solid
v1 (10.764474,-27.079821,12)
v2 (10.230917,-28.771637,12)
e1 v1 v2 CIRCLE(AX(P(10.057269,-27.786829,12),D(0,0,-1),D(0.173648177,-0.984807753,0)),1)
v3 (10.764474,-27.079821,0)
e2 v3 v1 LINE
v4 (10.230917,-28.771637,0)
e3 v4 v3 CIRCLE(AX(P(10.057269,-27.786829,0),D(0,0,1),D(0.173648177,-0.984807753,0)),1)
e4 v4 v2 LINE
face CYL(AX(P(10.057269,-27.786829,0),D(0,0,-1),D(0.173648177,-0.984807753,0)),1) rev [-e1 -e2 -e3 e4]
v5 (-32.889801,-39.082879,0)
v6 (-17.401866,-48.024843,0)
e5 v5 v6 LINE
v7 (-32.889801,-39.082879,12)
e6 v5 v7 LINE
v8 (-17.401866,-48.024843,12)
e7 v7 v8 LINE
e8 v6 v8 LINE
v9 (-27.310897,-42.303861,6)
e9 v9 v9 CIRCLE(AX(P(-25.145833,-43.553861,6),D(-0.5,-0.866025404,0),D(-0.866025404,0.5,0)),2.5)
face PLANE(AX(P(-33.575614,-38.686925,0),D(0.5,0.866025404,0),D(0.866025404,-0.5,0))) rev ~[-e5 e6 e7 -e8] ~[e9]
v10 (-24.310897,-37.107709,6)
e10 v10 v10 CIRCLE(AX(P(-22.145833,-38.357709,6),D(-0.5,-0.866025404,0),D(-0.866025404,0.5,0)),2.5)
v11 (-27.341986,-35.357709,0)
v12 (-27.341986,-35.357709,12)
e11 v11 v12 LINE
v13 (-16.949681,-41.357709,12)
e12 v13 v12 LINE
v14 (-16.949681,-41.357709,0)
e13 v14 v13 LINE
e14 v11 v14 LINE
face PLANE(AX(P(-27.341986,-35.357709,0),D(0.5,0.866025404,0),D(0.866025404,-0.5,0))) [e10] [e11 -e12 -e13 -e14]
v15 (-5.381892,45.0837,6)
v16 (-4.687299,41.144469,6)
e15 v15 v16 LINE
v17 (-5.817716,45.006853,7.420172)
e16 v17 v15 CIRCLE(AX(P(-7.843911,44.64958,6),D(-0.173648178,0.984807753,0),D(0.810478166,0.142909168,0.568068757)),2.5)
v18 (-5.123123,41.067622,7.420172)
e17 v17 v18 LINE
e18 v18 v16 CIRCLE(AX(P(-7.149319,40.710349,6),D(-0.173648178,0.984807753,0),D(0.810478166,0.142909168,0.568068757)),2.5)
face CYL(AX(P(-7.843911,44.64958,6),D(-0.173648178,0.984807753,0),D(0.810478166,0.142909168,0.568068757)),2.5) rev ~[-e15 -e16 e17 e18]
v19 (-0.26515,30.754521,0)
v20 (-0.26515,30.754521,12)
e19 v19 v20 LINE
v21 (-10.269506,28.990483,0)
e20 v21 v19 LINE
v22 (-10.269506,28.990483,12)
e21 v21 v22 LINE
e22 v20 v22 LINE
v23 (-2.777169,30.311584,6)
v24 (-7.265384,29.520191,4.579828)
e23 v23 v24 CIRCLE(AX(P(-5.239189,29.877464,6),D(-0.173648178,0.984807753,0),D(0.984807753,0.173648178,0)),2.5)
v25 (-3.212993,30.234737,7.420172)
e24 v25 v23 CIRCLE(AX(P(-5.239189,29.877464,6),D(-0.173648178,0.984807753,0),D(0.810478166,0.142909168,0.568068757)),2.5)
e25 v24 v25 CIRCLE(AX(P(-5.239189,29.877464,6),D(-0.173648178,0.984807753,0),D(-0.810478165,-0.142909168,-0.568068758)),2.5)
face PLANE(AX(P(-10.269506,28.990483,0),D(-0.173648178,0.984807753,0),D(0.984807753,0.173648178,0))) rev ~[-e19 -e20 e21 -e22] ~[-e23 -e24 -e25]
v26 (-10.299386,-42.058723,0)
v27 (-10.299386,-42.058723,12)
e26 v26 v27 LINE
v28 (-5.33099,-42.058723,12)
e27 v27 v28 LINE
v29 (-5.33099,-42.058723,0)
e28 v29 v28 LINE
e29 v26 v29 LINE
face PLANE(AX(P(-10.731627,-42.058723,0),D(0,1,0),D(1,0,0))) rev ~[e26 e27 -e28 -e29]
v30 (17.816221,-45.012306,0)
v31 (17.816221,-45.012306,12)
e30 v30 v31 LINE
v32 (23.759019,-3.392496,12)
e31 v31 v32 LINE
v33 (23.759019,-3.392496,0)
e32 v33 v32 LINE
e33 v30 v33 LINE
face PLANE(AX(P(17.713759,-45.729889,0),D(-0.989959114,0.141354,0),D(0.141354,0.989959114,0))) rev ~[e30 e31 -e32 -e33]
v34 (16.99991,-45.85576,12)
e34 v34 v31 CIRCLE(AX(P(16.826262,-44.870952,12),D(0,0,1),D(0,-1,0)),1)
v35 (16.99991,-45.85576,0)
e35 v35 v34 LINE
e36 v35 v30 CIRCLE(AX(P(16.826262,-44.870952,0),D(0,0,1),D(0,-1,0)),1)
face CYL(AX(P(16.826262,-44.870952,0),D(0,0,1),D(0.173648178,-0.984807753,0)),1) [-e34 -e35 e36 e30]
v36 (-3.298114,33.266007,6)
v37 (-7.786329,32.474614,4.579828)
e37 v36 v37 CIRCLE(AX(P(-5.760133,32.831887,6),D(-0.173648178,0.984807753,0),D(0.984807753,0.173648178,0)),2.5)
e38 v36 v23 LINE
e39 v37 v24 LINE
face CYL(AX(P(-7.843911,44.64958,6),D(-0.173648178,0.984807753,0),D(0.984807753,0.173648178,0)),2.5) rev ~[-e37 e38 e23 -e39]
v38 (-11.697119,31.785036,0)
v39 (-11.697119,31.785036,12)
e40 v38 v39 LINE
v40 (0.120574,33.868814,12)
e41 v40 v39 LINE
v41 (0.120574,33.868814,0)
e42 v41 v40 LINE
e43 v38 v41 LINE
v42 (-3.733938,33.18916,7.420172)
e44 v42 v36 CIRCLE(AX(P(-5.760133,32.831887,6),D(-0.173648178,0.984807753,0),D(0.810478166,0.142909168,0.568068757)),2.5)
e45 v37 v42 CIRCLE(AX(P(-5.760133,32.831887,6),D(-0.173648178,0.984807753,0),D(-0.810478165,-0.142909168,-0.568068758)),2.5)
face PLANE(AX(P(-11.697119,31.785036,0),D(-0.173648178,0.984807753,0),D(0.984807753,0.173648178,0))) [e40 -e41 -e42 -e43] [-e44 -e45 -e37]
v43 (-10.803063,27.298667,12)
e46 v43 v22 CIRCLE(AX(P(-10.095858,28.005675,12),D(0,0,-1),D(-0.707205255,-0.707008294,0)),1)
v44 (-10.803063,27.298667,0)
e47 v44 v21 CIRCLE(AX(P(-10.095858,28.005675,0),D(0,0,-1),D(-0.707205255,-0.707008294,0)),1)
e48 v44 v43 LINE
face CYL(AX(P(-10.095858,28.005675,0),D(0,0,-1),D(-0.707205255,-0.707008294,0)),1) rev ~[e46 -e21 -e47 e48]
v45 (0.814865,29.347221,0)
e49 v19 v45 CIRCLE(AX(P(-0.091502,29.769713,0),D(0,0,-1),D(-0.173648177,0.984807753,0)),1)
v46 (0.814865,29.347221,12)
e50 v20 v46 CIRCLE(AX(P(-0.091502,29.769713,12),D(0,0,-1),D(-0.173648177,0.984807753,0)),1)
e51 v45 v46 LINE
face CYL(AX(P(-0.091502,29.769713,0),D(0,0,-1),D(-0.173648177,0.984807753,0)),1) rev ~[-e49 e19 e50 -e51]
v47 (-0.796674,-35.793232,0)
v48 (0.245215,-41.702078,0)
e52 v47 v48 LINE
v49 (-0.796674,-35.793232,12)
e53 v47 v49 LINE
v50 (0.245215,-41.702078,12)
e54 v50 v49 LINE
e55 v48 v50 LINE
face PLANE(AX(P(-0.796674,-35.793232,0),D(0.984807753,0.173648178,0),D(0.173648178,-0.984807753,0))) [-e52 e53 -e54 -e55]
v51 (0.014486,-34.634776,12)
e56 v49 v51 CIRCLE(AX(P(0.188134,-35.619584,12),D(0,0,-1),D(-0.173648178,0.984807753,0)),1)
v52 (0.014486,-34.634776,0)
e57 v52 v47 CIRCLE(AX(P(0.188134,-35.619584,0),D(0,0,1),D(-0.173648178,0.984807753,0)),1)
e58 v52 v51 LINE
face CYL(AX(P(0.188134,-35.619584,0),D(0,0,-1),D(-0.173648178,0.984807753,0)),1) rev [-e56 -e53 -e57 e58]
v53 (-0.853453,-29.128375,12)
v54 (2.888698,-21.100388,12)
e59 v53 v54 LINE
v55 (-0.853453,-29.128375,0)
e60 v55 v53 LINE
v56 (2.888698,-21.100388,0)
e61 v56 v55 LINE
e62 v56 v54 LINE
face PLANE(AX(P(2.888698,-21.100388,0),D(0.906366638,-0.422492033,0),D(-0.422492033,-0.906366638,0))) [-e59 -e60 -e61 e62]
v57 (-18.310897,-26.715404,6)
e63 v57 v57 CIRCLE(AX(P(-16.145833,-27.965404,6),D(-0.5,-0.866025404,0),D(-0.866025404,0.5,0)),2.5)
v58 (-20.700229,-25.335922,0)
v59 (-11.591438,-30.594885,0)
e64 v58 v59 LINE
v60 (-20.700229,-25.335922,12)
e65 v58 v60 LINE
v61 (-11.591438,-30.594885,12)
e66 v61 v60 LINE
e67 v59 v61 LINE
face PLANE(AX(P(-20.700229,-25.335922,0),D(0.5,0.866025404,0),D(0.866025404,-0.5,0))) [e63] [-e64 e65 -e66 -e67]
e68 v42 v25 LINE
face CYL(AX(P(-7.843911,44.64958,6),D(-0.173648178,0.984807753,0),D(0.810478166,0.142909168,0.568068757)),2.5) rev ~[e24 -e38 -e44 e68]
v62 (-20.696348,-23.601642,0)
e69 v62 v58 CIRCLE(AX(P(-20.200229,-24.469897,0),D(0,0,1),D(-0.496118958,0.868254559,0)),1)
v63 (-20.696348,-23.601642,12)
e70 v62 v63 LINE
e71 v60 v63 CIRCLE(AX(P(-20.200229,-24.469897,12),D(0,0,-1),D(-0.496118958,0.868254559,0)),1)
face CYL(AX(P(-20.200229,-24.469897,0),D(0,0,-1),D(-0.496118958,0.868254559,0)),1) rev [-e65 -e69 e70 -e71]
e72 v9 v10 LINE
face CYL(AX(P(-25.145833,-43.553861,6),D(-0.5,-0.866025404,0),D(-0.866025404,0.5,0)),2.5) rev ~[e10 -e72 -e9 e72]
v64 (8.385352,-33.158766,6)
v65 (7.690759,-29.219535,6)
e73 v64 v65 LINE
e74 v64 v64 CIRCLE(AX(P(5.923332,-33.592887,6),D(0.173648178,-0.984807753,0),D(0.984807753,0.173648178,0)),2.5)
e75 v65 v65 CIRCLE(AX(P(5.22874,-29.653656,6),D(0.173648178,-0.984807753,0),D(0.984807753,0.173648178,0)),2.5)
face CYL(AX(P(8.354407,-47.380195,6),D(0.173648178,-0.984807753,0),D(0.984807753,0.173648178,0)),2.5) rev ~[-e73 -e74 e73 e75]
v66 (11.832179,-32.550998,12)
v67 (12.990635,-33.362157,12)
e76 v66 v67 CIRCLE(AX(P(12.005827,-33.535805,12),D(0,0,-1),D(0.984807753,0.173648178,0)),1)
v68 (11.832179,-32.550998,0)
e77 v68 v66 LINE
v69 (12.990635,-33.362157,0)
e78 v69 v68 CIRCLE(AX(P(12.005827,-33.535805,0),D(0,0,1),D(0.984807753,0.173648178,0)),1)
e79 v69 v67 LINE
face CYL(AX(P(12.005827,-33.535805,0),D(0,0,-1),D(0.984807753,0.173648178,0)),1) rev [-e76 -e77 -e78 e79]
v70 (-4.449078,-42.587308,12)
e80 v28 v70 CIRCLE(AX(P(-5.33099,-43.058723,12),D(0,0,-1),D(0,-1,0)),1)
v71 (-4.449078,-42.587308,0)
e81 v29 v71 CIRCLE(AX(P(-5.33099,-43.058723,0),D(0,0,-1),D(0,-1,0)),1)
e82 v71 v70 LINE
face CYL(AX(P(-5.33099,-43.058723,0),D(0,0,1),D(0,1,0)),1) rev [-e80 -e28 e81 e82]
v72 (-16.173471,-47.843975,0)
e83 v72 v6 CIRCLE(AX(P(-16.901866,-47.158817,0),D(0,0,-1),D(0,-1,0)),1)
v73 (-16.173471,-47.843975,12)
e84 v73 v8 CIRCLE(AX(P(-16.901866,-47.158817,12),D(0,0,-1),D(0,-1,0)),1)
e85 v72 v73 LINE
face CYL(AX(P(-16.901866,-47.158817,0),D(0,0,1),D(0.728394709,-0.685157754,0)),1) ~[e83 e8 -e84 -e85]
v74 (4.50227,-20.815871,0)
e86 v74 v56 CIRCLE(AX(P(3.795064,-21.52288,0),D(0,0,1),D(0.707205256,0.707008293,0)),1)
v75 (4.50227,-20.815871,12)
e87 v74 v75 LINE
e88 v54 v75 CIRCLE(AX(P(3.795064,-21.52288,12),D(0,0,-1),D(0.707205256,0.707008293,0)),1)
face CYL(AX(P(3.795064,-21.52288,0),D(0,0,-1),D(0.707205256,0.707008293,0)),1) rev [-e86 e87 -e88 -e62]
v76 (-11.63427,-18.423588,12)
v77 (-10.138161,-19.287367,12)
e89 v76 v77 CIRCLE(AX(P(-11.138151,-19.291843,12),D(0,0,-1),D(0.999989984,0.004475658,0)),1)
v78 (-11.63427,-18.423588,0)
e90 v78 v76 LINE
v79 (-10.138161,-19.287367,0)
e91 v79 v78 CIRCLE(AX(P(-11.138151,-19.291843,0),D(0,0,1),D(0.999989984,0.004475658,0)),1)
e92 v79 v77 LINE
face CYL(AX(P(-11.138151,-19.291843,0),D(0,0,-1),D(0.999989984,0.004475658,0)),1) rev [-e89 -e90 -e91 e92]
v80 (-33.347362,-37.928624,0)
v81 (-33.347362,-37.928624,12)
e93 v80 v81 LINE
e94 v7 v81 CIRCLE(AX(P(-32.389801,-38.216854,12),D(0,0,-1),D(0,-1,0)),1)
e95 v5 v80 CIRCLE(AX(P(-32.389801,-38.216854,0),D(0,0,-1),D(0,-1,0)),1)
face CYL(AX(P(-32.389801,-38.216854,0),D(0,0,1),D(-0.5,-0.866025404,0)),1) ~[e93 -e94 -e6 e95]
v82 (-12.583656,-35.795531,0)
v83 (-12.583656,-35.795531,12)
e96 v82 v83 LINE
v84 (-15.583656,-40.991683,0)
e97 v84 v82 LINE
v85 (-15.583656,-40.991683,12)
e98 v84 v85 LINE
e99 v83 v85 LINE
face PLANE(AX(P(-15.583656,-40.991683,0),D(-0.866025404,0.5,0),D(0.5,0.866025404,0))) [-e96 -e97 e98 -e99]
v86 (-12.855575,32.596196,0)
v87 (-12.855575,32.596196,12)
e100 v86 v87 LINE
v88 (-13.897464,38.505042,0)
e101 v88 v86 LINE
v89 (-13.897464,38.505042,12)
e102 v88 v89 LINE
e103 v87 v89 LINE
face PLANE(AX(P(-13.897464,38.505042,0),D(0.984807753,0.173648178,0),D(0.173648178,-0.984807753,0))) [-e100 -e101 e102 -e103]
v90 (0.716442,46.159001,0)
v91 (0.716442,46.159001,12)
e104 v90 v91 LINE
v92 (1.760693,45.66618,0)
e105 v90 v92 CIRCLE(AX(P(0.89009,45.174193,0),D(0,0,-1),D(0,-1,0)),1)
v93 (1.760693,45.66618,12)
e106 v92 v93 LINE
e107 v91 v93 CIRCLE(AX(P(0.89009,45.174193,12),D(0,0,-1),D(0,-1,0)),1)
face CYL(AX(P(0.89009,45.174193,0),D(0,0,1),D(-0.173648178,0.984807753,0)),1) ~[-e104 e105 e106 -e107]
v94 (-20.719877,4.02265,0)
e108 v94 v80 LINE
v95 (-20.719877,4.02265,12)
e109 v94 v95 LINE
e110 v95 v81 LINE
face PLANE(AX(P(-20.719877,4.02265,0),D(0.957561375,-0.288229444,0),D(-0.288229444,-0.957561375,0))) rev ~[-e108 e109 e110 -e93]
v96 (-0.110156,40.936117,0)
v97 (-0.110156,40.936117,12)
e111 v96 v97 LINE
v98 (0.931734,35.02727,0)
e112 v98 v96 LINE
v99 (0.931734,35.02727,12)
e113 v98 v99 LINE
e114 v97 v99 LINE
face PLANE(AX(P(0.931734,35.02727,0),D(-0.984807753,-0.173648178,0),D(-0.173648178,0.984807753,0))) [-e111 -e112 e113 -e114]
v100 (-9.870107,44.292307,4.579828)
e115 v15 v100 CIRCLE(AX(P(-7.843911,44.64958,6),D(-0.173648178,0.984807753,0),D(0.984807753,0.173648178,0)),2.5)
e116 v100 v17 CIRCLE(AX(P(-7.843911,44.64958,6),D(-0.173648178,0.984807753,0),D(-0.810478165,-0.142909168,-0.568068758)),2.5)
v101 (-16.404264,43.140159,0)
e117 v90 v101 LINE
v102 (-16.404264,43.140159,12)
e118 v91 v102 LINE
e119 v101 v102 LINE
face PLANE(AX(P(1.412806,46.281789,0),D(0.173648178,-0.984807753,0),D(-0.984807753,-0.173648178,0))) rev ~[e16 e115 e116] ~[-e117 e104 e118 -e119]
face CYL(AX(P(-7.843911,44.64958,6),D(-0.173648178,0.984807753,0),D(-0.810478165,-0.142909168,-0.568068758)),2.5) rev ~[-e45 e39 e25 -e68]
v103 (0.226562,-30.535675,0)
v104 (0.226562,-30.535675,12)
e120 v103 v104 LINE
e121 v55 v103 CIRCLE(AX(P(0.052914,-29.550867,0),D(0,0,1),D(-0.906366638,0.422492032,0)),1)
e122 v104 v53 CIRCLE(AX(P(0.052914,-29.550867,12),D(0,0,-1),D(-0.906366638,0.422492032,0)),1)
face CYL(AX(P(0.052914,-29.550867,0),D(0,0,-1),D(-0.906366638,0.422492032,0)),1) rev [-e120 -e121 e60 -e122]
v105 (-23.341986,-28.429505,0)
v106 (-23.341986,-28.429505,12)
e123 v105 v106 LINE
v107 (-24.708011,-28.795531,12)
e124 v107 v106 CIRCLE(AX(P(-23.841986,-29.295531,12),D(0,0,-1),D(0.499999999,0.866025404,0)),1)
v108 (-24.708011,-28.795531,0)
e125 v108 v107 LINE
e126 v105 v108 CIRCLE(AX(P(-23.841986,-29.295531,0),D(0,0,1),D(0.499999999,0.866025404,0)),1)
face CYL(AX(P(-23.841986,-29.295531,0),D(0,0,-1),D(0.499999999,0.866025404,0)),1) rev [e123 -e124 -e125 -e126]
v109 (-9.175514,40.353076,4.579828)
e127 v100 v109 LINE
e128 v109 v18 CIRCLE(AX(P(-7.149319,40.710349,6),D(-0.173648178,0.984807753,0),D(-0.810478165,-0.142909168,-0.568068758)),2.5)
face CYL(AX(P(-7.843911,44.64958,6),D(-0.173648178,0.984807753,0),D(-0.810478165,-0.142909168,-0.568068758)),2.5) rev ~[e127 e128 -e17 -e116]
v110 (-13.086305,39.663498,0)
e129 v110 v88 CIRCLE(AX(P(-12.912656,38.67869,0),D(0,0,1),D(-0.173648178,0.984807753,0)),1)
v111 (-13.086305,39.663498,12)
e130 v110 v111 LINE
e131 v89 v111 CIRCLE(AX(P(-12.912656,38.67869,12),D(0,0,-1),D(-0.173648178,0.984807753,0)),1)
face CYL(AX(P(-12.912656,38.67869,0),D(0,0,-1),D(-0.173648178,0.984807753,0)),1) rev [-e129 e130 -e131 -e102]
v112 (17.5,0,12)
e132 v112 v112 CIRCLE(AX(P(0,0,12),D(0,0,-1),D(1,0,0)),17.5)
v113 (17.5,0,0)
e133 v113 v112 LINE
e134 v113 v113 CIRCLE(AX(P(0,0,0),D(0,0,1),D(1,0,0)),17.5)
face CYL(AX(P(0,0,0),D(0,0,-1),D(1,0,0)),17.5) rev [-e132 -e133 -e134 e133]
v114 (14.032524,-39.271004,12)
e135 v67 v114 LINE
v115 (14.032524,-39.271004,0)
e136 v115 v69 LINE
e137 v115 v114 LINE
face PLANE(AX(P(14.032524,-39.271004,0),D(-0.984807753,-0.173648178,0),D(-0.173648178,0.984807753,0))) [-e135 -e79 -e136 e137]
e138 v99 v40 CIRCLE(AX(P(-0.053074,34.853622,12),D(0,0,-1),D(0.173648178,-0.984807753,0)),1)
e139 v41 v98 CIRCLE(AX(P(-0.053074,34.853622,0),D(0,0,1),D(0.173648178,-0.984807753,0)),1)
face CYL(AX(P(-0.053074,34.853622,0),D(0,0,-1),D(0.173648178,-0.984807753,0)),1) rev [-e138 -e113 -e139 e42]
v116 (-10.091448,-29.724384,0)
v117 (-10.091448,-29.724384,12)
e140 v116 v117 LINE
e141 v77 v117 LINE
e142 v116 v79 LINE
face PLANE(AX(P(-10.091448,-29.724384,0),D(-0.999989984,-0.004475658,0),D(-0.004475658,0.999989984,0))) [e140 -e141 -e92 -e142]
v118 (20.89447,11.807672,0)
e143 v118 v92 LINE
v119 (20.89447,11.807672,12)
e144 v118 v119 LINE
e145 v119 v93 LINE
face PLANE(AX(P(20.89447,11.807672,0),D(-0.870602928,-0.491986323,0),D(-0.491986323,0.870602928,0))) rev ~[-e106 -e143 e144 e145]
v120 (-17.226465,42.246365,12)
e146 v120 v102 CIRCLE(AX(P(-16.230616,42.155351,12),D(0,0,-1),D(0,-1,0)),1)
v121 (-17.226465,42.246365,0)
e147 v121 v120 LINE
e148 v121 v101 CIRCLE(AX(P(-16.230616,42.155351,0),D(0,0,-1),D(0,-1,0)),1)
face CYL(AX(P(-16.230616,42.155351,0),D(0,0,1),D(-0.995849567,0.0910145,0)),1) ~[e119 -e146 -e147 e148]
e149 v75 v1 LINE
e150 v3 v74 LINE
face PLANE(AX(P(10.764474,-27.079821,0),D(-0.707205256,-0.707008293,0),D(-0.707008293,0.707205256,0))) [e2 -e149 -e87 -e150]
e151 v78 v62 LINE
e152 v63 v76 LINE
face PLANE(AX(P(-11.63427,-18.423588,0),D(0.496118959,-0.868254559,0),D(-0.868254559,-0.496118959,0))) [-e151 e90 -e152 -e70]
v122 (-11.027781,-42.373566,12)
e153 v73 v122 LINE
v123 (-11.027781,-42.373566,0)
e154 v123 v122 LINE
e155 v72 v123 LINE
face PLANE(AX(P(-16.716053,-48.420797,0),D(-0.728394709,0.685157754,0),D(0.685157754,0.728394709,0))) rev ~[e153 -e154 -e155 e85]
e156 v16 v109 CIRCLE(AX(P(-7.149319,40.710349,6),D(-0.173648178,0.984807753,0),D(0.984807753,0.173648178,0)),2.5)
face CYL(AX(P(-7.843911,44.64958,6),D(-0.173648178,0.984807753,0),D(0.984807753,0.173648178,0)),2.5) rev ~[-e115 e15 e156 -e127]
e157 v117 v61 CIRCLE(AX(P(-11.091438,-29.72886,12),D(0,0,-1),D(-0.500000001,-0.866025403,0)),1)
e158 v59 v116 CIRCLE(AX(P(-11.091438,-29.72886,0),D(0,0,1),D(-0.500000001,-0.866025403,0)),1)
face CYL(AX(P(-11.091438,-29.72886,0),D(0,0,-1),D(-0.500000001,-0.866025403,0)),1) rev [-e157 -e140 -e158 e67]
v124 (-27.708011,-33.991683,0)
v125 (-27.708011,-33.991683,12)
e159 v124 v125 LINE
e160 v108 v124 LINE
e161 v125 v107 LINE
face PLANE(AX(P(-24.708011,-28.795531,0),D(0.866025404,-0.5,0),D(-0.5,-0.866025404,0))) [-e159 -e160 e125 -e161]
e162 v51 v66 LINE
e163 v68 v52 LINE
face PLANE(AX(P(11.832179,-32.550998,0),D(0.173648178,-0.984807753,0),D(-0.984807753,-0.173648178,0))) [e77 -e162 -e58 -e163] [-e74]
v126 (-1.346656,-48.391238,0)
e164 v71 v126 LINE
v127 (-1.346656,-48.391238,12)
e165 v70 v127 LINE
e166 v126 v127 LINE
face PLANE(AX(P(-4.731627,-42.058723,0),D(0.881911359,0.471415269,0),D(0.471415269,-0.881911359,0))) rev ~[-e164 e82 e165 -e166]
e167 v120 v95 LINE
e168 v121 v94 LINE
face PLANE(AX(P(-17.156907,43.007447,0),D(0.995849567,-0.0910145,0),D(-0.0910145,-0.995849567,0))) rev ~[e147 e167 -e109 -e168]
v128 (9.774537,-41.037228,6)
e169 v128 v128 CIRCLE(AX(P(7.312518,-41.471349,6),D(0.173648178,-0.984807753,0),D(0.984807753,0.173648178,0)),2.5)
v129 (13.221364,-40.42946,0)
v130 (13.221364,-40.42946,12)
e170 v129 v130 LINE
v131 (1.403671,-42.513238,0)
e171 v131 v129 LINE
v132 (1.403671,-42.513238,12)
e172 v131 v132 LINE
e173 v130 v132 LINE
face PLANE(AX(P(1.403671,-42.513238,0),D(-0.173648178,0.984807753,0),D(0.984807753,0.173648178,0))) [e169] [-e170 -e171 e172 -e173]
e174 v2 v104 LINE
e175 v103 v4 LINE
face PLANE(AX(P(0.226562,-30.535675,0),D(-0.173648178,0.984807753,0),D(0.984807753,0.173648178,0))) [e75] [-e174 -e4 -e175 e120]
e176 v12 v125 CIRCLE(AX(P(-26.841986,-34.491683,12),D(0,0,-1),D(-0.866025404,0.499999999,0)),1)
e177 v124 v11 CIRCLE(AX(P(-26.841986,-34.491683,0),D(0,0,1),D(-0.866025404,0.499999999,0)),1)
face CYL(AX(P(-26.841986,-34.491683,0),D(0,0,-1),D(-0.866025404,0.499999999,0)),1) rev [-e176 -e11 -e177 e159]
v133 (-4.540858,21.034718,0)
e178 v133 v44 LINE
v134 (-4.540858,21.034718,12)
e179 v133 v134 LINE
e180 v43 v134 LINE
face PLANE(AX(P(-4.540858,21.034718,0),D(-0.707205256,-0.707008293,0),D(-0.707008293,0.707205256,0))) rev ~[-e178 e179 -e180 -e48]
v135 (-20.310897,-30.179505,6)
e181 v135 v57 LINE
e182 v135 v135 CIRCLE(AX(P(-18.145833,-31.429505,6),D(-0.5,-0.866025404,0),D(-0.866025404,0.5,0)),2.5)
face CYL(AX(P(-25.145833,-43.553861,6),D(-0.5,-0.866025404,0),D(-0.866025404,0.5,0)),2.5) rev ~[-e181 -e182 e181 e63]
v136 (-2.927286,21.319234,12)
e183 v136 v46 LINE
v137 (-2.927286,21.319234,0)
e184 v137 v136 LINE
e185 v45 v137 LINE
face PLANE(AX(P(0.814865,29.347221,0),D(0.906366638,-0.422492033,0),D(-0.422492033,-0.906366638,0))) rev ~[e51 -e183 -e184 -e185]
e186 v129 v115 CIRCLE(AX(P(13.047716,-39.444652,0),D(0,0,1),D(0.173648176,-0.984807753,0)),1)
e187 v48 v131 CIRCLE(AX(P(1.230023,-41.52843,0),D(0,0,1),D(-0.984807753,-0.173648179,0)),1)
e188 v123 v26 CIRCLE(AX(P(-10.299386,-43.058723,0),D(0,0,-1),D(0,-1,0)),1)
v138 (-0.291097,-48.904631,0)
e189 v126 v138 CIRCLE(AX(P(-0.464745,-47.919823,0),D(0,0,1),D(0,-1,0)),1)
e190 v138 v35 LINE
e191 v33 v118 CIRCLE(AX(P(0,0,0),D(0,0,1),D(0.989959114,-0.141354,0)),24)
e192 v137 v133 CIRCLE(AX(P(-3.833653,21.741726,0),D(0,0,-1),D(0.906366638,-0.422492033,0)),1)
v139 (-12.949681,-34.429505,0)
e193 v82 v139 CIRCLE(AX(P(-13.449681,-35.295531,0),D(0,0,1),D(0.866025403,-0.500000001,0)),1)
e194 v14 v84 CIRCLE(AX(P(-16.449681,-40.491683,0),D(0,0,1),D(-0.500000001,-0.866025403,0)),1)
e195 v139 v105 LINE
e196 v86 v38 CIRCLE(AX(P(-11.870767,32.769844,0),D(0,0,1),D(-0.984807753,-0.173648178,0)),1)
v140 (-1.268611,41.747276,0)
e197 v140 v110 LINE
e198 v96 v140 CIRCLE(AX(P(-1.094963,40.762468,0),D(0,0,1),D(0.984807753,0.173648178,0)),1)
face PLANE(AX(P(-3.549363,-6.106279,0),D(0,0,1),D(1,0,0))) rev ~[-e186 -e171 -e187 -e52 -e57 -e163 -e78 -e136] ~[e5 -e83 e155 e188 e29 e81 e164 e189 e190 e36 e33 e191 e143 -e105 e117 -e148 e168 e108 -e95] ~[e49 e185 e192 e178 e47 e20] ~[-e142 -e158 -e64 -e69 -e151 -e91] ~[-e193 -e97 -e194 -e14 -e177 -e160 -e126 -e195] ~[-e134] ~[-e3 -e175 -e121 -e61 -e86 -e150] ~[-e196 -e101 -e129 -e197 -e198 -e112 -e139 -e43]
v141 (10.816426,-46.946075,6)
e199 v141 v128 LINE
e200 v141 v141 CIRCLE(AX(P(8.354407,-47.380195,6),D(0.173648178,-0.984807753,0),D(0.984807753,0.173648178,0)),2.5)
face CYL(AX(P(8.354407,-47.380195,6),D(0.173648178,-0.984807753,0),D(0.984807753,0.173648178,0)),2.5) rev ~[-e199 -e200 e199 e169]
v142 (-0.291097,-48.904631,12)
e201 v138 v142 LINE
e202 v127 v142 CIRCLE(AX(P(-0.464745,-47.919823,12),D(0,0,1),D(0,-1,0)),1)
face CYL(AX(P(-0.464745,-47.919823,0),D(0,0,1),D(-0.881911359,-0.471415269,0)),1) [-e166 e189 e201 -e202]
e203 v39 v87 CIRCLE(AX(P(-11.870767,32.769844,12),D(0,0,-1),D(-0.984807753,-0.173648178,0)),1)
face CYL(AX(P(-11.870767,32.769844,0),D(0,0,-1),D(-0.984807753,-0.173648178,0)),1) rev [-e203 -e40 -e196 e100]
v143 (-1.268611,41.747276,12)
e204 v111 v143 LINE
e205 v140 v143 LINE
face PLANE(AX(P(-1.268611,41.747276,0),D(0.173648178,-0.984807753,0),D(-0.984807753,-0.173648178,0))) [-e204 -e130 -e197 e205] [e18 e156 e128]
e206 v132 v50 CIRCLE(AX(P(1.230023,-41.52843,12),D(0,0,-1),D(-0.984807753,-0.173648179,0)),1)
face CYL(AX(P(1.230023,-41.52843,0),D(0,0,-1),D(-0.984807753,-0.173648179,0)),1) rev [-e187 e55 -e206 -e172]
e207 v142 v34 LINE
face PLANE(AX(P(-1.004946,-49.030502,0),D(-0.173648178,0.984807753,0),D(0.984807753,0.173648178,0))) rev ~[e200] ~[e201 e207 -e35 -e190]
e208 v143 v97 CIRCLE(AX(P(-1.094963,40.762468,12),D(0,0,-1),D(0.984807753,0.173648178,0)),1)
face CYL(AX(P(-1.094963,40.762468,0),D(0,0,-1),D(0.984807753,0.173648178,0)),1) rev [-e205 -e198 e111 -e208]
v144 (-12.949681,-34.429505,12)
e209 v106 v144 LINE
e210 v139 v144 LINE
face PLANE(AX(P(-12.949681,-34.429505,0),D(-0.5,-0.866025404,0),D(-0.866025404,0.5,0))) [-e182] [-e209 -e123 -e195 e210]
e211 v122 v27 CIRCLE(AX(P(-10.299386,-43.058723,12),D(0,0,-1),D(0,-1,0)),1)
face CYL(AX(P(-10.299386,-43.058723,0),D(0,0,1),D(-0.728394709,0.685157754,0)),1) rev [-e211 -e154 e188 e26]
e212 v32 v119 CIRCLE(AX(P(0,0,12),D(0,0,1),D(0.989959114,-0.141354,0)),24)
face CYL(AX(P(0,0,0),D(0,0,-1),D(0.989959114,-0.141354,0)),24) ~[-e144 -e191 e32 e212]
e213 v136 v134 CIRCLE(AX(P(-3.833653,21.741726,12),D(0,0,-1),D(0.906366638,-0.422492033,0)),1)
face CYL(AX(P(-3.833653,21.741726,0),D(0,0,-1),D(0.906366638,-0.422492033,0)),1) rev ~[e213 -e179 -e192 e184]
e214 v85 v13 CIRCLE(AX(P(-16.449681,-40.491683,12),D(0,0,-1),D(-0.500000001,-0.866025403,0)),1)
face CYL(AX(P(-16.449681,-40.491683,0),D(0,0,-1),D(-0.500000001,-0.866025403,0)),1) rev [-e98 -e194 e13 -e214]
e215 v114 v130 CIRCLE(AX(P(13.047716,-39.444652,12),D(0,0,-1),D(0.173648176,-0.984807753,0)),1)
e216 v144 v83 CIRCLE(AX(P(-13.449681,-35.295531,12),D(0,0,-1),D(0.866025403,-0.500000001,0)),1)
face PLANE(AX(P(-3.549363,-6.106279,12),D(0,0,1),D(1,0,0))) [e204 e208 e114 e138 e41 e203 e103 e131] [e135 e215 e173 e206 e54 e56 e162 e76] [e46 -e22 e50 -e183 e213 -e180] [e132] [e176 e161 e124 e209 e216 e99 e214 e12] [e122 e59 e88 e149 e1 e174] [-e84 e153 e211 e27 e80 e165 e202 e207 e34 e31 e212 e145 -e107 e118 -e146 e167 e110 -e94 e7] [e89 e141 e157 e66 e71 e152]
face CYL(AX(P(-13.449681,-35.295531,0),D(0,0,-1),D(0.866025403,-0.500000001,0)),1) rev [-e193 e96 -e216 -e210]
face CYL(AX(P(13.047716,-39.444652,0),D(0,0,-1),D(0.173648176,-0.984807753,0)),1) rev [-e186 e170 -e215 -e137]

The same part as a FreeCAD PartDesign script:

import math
import FreeCAD as App
import Part
import Sketcher
Q = App.Units.Quantity


def edges_at(feature, points):
    """Names of the edges that pass closest to the given points."""
    edges = feature.Shape.Edges
    near = lambda p: min(range(len(edges)), key=lambda i: edges[i].distToShape(Part.Vertex(*p))[0])
    return sorted({f"Edge{near(p) + 1}" for p in points})

doc = App.newDocument("Part")
params = doc.addObject("Spreadsheet::Sheet", "Params")
for row, (alias, value) in enumerate([
    ("sketch1_radius", "24 mm"),
    ("sketch1_width", "6 mm"),
    ("pad1_length", "12 mm"),
    ("sketch2_diameter", "35 mm"),
    ("sketch3_radius", "1 mm"),
    ("sketch3_length", "6 mm"),
    ("sketch3_length2", "12 mm"),
    ("fillet_radius", "1 mm"),
    ("sketch4_diameter", "5 mm"),
    ("pocket3_length", "20 mm"),
    ("sketch5_diameter", "5 mm"),
    ("pocket4_length", "20 mm"),
    ("sketch6_radius", "2.5 mm"),
    ("pocket5_length", "20 mm"),
], start=1):
    params.set(f"A{row}", alias)
    params.set(f"B{row}", "=" + value)
    params.setAlias(f"B{row}", alias)

body = doc.addObject("PartDesign::Body", "Body")

sketch1 = body.newObject("Sketcher::SketchObject", "Sketch")
sketch1.AttachmentSupport = (doc.getObject("XY_Plane"), [""])
sketch1.MapMode = "FlatFace"
sketch1.addGeometry(Part.LineSegment(App.Vector(-16.716053, -48.420797, 0), App.Vector(-10.731627, -42.058723, 0)), False)
sketch1.addGeometry(Part.LineSegment(App.Vector(-10.731627, -42.058723, 0), App.Vector(-4.731627, -42.058723, 0)), False)
sketch1.addGeometry(Part.LineSegment(App.Vector(-4.731627, -42.058723, 0), App.Vector(-1.004946, -49.030502, 0)), False)
sketch1.addGeometry(Part.LineSegment(App.Vector(-1.004946, -49.030502, 0), App.Vector(17.713759, -45.729889, 0)), False)
sketch1.addGeometry(Part.LineSegment(App.Vector(17.713759, -45.729889, 0), App.Vector(23.759019, -3.392496, 0)), False)
sketch1.addGeometry(Part.ArcOfCircle(Part.Circle(App.Vector(0, 0, 0), App.Vector(0, 0, 1), 24), math.radians(-8.126204), math.radians(29.471221)), False)
sketch1.addGeometry(Part.LineSegment(App.Vector(20.89447, 11.807672, 0), App.Vector(1.412806, 46.281789, 0)), False)
sketch1.addGeometry(Part.LineSegment(App.Vector(1.412806, 46.281789, 0), App.Vector(-17.156907, 43.007447, 0)), False)
sketch1.addGeometry(Part.LineSegment(App.Vector(-17.156907, 43.007447, 0), App.Vector(-20.719877, 4.02265, 0)), False)
sketch1.addGeometry(Part.LineSegment(App.Vector(-20.719877, 4.02265, 0), App.Vector(-33.575614, -38.686925, 0)), False)
sketch1.addGeometry(Part.LineSegment(App.Vector(-33.575614, -38.686925, 0), App.Vector(-16.716053, -48.420797, 0)), False)
sketch1.addConstraint(Sketcher.Constraint("Coincident", 0, 2, 1, 1))
sketch1.addConstraint(Sketcher.Constraint("Coincident", 1, 2, 2, 1))
sketch1.addConstraint(Sketcher.Constraint("Coincident", 2, 2, 3, 1))
sketch1.addConstraint(Sketcher.Constraint("Coincident", 3, 2, 4, 1))
sketch1.addConstraint(Sketcher.Constraint("Tangent", 4, 2, 5, 1))
sketch1.addConstraint(Sketcher.Constraint("Tangent", 5, 2, 6, 1))
sketch1.addConstraint(Sketcher.Constraint("Coincident", 6, 2, 7, 1))
sketch1.addConstraint(Sketcher.Constraint("Coincident", 7, 2, 8, 1))
sketch1.addConstraint(Sketcher.Constraint("Coincident", 8, 2, 9, 1))
sketch1.addConstraint(Sketcher.Constraint("Coincident", 9, 2, 10, 1))
sketch1.addConstraint(Sketcher.Constraint("Coincident", 10, 2, 0, 1))
sketch1.addConstraint(Sketcher.Constraint("Horizontal", 1))
sketch1.addConstraint(Sketcher.Constraint("Coincident", 5, 3, -1, 1))
sketch1.addConstraint(Sketcher.Constraint("Parallel", 3, 7))
sketch1.addConstraint(Sketcher.Constraint("Radius", 5, 24.0))
sketch1.addConstraint(Sketcher.Constraint("DistanceX", 1, 1, 1, 2, 6.0))
sketch1.addConstraint(Sketcher.Constraint("Angle", 3, Q("10 deg")))
sketch1.addConstraint(Sketcher.Constraint("Angle", 10, Q("-30 deg")))
sketch1.addConstraint(Sketcher.Constraint("DistanceY", 2, 2, -1, 1, 49.030502))
sketch1.addConstraint(Sketcher.Constraint("DistanceY", 0, 2, 9, 2, 3.371798))
sketch1.addConstraint(Sketcher.Constraint("Distance", 3, 19.007471))
sketch1.addConstraint(Sketcher.Constraint("Distance", 4, 42.76681))
sketch1.addConstraint(Sketcher.Constraint("Distance", 6, 39.59798))
sketch1.addConstraint(Sketcher.Constraint("Distance", 7, 18.856181))
sketch1.addConstraint(Sketcher.Constraint("Distance", 9, 44.602441))
sketch1.addConstraint(Sketcher.Constraint("DistanceX", -1, 1, 5, 2, 20.89447))
sketch1.addConstraint(Sketcher.Constraint("DistanceY", -1, 1, 8, 2, 4.02265))
sketch1.addConstraint(Sketcher.Constraint("DistanceX", 1, 2, 2, 2, 3.726681))
sketch1.addConstraint(Sketcher.Constraint("DistanceY", 2, 2, 1, 2, 6.971778))
sketch1.addConstraint(Sketcher.Constraint("DistanceX", 8, 2, 7, 2, 3.56297))
sketch1.addConstraint(Sketcher.Constraint("DistanceX", 9, 2, 10, 2, 16.859561))
sketch1.setExpression("Constraints[14]", "Params.sketch1_radius")
sketch1.setExpression("Constraints[15]", "Params.sketch1_width")
pad1 = body.newObject("PartDesign::Pad", "Pad")
pad1.Profile = sketch1
pad1.setExpression("Length", "Params.pad1_length")

sketch2 = body.newObject("Sketcher::SketchObject", "Sketch001")
sketch2.AttachmentSupport = (doc.getObject("XY_Plane"), [""])
sketch2.MapMode = "FlatFace"
sketch2.addGeometry(Part.Circle(App.Vector(0, 0, 0), App.Vector(0, 0, 1), 17.5), False)
sketch2.addConstraint(Sketcher.Constraint("Coincident", 0, 3, -1, 1))
sketch2.addConstraint(Sketcher.Constraint("Diameter", 0, 35.0))
sketch2.setExpression("Constraints[1]", "Params.sketch2_diameter")
pocket1 = body.newObject("PartDesign::Pocket", "Pocket")
pocket1.Profile = sketch2
pocket1.Type = "ThroughAll"
pocket1.Reversed = True

sketch3 = body.newObject("Sketcher::SketchObject", "Sketch002")
sketch3.AttachmentSupport = (doc.getObject("XY_Plane"), [""])
sketch3.MapMode = "FlatFace"
sketch3.addGeometry(Part.ArcOfCircle(Part.Circle(App.Vector(-13.449681, -35.295531, 0), App.Vector(0, 0, 1), 1), math.radians(-30), math.radians(60)), False)
sketch3.addGeometry(Part.LineSegment(App.Vector(-12.583656, -35.795531, 0), App.Vector(-15.583656, -40.991683, 0)), False)
sketch3.addGeometry(Part.ArcOfCircle(Part.Circle(App.Vector(-16.449681, -40.491683, 0), App.Vector(0, 0, 1), 1), math.radians(-120), math.radians(-30)), False)
sketch3.addGeometry(Part.LineSegment(App.Vector(-16.949681, -41.357709, 0), App.Vector(-27.341986, -35.357709, 0)), False)
sketch3.addGeometry(Part.ArcOfCircle(Part.Circle(App.Vector(-26.841986, -34.491683, 0), App.Vector(0, 0, 1), 1), math.radians(150), math.radians(240)), False)
sketch3.addGeometry(Part.LineSegment(App.Vector(-27.708011, -33.991683, 0), App.Vector(-24.708011, -28.795531, 0)), False)
sketch3.addGeometry(Part.ArcOfCircle(Part.Circle(App.Vector(-23.841986, -29.295531, 0), App.Vector(0, 0, 1), 1), math.radians(60), math.radians(150)), False)
sketch3.addGeometry(Part.LineSegment(App.Vector(-23.341986, -28.429505, 0), App.Vector(-12.949681, -34.429505, 0)), False)
sketch3.addGeometry(Part.ArcOfCircle(Part.Circle(App.Vector(10.057269, -27.786829, 0), App.Vector(0, 0, 1), 1), math.radians(-80), math.radians(44.99202)), False)
sketch3.addGeometry(Part.LineSegment(App.Vector(10.230917, -28.771637, 0), App.Vector(0.226562, -30.535675, 0)), False)
sketch3.addGeometry(Part.ArcOfCircle(Part.Circle(App.Vector(0.052914, -29.550867, 0), App.Vector(0, 0, 1), 1), math.radians(155.00798), math.radians(280)), False)
sketch3.addGeometry(Part.LineSegment(App.Vector(-0.853453, -29.128375, 0), App.Vector(2.888698, -21.100388, 0)), False)
sketch3.addGeometry(Part.ArcOfCircle(Part.Circle(App.Vector(3.795064, -21.52288, 0), App.Vector(0, 0, 1), 1), math.radians(44.99202), math.radians(155.00798)), False)
sketch3.addGeometry(Part.LineSegment(App.Vector(4.50227, -20.815871, 0), App.Vector(10.764474, -27.079821, 0)), False)
sketch3.addGeometry(Part.ArcOfCircle(Part.Circle(App.Vector(12.005827, -33.535805, 0), App.Vector(0, 0, 1), 1), math.radians(10), math.radians(100)), False)
sketch3.addGeometry(Part.LineSegment(App.Vector(12.990635, -33.362157, 0), App.Vector(14.032524, -39.271004, 0)), False)
sketch3.addGeometry(Part.ArcOfCircle(Part.Circle(App.Vector(13.047716, -39.444652, 0), App.Vector(0, 0, 1), 1), math.radians(-80), math.radians(10)), False)
sketch3.addGeometry(Part.LineSegment(App.Vector(13.221364, -40.42946, 0), App.Vector(1.403671, -42.513238, 0)), False)
sketch3.addGeometry(Part.ArcOfCircle(Part.Circle(App.Vector(1.230023, -41.52843, 0), App.Vector(0, 0, 1), 1), math.radians(-170), math.radians(-80)), False)
sketch3.addGeometry(Part.LineSegment(App.Vector(0.245215, -41.702078, 0), App.Vector(-0.796674, -35.793232, 0)), False)
sketch3.addGeometry(Part.ArcOfCircle(Part.Circle(App.Vector(0.188134, -35.619584, 0), App.Vector(0, 0, 1), 1), math.radians(100), math.radians(190)), False)
sketch3.addGeometry(Part.LineSegment(App.Vector(0.014486, -34.634776, 0), App.Vector(11.832179, -32.550998, 0)), False)
sketch3.addGeometry(Part.LineSegment(App.Vector(0.814865, 29.347221, 0), App.Vector(-2.927286, 21.319234, 0)), False)
sketch3.addGeometry(Part.ArcOfCircle(Part.Circle(App.Vector(-3.833653, 21.741726, 0), App.Vector(0, 0, 1), 1), math.radians(-135.00798), math.radians(-24.99202)), False)
sketch3.addGeometry(Part.LineSegment(App.Vector(-4.540858, 21.034718, 0), App.Vector(-10.803063, 27.298667, 0)), False)
sketch3.addGeometry(Part.ArcOfCircle(Part.Circle(App.Vector(-10.095858, 28.005675, 0), App.Vector(0, 0, 1), 1), math.radians(100), math.radians(224.99202)), False)
sketch3.addGeometry(Part.LineSegment(App.Vector(-10.269506, 28.990483, 0), App.Vector(-0.26515, 30.754521, 0)), False)
sketch3.addGeometry(Part.ArcOfCircle(Part.Circle(App.Vector(-0.091502, 29.769713, 0), App.Vector(0, 0, 1), 1), math.radians(-24.99202), math.radians(100)), False)
sketch3.addGeometry(Part.ArcOfCircle(Part.Circle(App.Vector(-11.870767, 32.769844, 0), App.Vector(0, 0, 1), 1), math.radians(-170), math.radians(-80)), False)
sketch3.addGeometry(Part.LineSegment(App.Vector(-12.855575, 32.596196, 0), App.Vector(-13.897464, 38.505042, 0)), False)
sketch3.addGeometry(Part.ArcOfCircle(Part.Circle(App.Vector(-12.912656, 38.67869, 0), App.Vector(0, 0, 1), 1), math.radians(100), math.radians(190)), False)
sketch3.addGeometry(Part.LineSegment(App.Vector(-13.086305, 39.663498, 0), App.Vector(-1.268611, 41.747276, 0)), False)
sketch3.addGeometry(Part.ArcOfCircle(Part.Circle(App.Vector(-1.094963, 40.762468, 0), App.Vector(0, 0, 1), 1), math.radians(10), math.radians(100)), False)
sketch3.addGeometry(Part.LineSegment(App.Vector(-0.110156, 40.936117, 0), App.Vector(0.931734, 35.02727, 0)), False)
sketch3.addGeometry(Part.ArcOfCircle(Part.Circle(App.Vector(-0.053074, 34.853622, 0), App.Vector(0, 0, 1), 1), math.radians(-80), math.radians(10)), False)
sketch3.addGeometry(Part.LineSegment(App.Vector(0.120574, 33.868814, 0), App.Vector(-11.697119, 31.785036, 0)), False)
sketch3.addGeometry(Part.LineSegment(App.Vector(-20.696348, -23.601642, 0), App.Vector(-11.63427, -18.423588, 0)), False)
sketch3.addGeometry(Part.ArcOfCircle(Part.Circle(App.Vector(-11.138151, -19.291843, 0), App.Vector(0, 0, 1), 1), math.radians(0.256437), math.radians(119.743563)), False)
sketch3.addGeometry(Part.LineSegment(App.Vector(-10.138161, -19.287367, 0), App.Vector(-10.091448, -29.724384, 0)), False)
sketch3.addGeometry(Part.ArcOfCircle(Part.Circle(App.Vector(-11.091438, -29.72886, 0), App.Vector(0, 0, 1), 1), math.radians(-120), math.radians(0.256437)), False)
sketch3.addGeometry(Part.LineSegment(App.Vector(-11.591438, -30.594885, 0), App.Vector(-20.700229, -25.335922, 0)), False)
sketch3.addGeometry(Part.ArcOfCircle(Part.Circle(App.Vector(-20.200229, -24.469897, 0), App.Vector(0, 0, 1), 1), math.radians(119.743563), math.radians(240)), False)
sketch3.addConstraint(Sketcher.Constraint("Tangent", 0, 1, 1, 1))
sketch3.addConstraint(Sketcher.Constraint("Tangent", 1, 2, 2, 2))
sketch3.addConstraint(Sketcher.Constraint("Tangent", 2, 1, 3, 1))
sketch3.addConstraint(Sketcher.Constraint("Tangent", 3, 2, 4, 2))
sketch3.addConstraint(Sketcher.Constraint("Tangent", 4, 1, 5, 1))
sketch3.addConstraint(Sketcher.Constraint("Tangent", 5, 2, 6, 2))
sketch3.addConstraint(Sketcher.Constraint("Tangent", 6, 1, 7, 1))
sketch3.addConstraint(Sketcher.Constraint("Tangent", 7, 2, 0, 2))
sketch3.addConstraint(Sketcher.Constraint("Tangent", 8, 1, 9, 1))
sketch3.addConstraint(Sketcher.Constraint("Tangent", 9, 2, 10, 2))
sketch3.addConstraint(Sketcher.Constraint("Tangent", 10, 1, 11, 1))
sketch3.addConstraint(Sketcher.Constraint("Tangent", 11, 2, 12, 2))
sketch3.addConstraint(Sketcher.Constraint("Tangent", 12, 1, 13, 1))
sketch3.addConstraint(Sketcher.Constraint("Tangent", 13, 2, 8, 2))
sketch3.addConstraint(Sketcher.Constraint("Tangent", 14, 1, 15, 1))
sketch3.addConstraint(Sketcher.Constraint("Tangent", 15, 2, 16, 2))
sketch3.addConstraint(Sketcher.Constraint("Tangent", 16, 1, 17, 1))
sketch3.addConstraint(Sketcher.Constraint("Tangent", 17, 2, 18, 2))
sketch3.addConstraint(Sketcher.Constraint("Tangent", 18, 1, 19, 1))
sketch3.addConstraint(Sketcher.Constraint("Tangent", 19, 2, 20, 2))
sketch3.addConstraint(Sketcher.Constraint("Tangent", 20, 1, 21, 1))
sketch3.addConstraint(Sketcher.Constraint("Tangent", 21, 2, 14, 2))
sketch3.addConstraint(Sketcher.Constraint("Tangent", 22, 2, 23, 2))
sketch3.addConstraint(Sketcher.Constraint("Tangent", 23, 1, 24, 1))
sketch3.addConstraint(Sketcher.Constraint("Tangent", 24, 2, 25, 2))
sketch3.addConstraint(Sketcher.Constraint("Tangent", 25, 1, 26, 1))
sketch3.addConstraint(Sketcher.Constraint("Tangent", 26, 2, 27, 2))
sketch3.addConstraint(Sketcher.Constraint("Tangent", 27, 1, 22, 1))
sketch3.addConstraint(Sketcher.Constraint("Tangent", 28, 1, 29, 1))
sketch3.addConstraint(Sketcher.Constraint("Tangent", 29, 2, 30, 2))
sketch3.addConstraint(Sketcher.Constraint("Tangent", 30, 1, 31, 1))
sketch3.addConstraint(Sketcher.Constraint("Tangent", 31, 2, 32, 2))
sketch3.addConstraint(Sketcher.Constraint("Tangent", 32, 1, 33, 1))
sketch3.addConstraint(Sketcher.Constraint("Tangent", 33, 2, 34, 2))
sketch3.addConstraint(Sketcher.Constraint("Tangent", 34, 1, 35, 1))
sketch3.addConstraint(Sketcher.Constraint("Tangent", 35, 2, 28, 2))
sketch3.addConstraint(Sketcher.Constraint("Tangent", 36, 2, 37, 2))
sketch3.addConstraint(Sketcher.Constraint("Tangent", 37, 1, 38, 1))
sketch3.addConstraint(Sketcher.Constraint("Tangent", 38, 2, 39, 2))
sketch3.addConstraint(Sketcher.Constraint("Tangent", 39, 1, 40, 1))
sketch3.addConstraint(Sketcher.Constraint("Tangent", 40, 2, 41, 2))
sketch3.addConstraint(Sketcher.Constraint("Tangent", 41, 1, 36, 1))
sketch3.addConstraint(Sketcher.Constraint("Equal", 0, 2))
sketch3.addConstraint(Sketcher.Constraint("Equal", 2, 4))
sketch3.addConstraint(Sketcher.Constraint("Equal", 4, 6))
sketch3.addConstraint(Sketcher.Constraint("Equal", 6, 8))
sketch3.addConstraint(Sketcher.Constraint("Equal", 8, 10))
sketch3.addConstraint(Sketcher.Constraint("Equal", 10, 12))
sketch3.addConstraint(Sketcher.Constraint("Equal", 12, 14))
sketch3.addConstraint(Sketcher.Constraint("Equal", 14, 16))
sketch3.addConstraint(Sketcher.Constraint("Equal", 16, 18))
sketch3.addConstraint(Sketcher.Constraint("Equal", 18, 20))
sketch3.addConstraint(Sketcher.Constraint("Equal", 20, 23))
sketch3.addConstraint(Sketcher.Constraint("Equal", 23, 25))
sketch3.addConstraint(Sketcher.Constraint("Equal", 25, 27))
sketch3.addConstraint(Sketcher.Constraint("Equal", 27, 28))
sketch3.addConstraint(Sketcher.Constraint("Equal", 28, 30))
sketch3.addConstraint(Sketcher.Constraint("Equal", 30, 32))
sketch3.addConstraint(Sketcher.Constraint("Equal", 32, 34))
sketch3.addConstraint(Sketcher.Constraint("Equal", 34, 37))
sketch3.addConstraint(Sketcher.Constraint("Equal", 37, 39))
sketch3.addConstraint(Sketcher.Constraint("Equal", 39, 41))
sketch3.addConstraint(Sketcher.Constraint("Perpendicular", 1, 3))
sketch3.addConstraint(Sketcher.Constraint("Perpendicular", 3, 5))
sketch3.addConstraint(Sketcher.Constraint("Perpendicular", 5, 7))
sketch3.addConstraint(Sketcher.Constraint("Perpendicular", 9, 15))
sketch3.addConstraint(Sketcher.Constraint("Perpendicular", 15, 17))
sketch3.addConstraint(Sketcher.Constraint("Perpendicular", 17, 19))
sketch3.addConstraint(Sketcher.Constraint("Perpendicular", 19, 21))
sketch3.addConstraint(Sketcher.Constraint("Parallel", 11, 22))
sketch3.addConstraint(Sketcher.Constraint("Parallel", 13, 24))
sketch3.addConstraint(Sketcher.Constraint("Parallel", 21, 26))
sketch3.addConstraint(Sketcher.Constraint("Perpendicular", 26, 29))
sketch3.addConstraint(Sketcher.Constraint("Perpendicular", 29, 31))
sketch3.addConstraint(Sketcher.Constraint("Perpendicular", 31, 33))
sketch3.addConstraint(Sketcher.Constraint("Perpendicular", 33, 35))
sketch3.addConstraint(Sketcher.Constraint("Parallel", 7, 40))
sketch3.addConstraint(Sketcher.Constraint("Equal", 11, 13))
sketch3.addConstraint(Sketcher.Constraint("Equal", 5, 15))
sketch3.addConstraint(Sketcher.Constraint("Equal", 7, 17))
sketch3.addConstraint(Sketcher.Constraint("Equal", 13, 22))
sketch3.addConstraint(Sketcher.Constraint("Equal", 19, 29))
sketch3.addConstraint(Sketcher.Constraint("Equal", 21, 31))
sketch3.addConstraint(Sketcher.Constraint("Equal", 36, 38))
sketch3.addConstraint(Sketcher.Constraint("Radius", 0, 1.0))
sketch3.addConstraint(Sketcher.Constraint("Angle", 1, Q("-120 deg")))
sketch3.addConstraint(Sketcher.Constraint("Angle", 9, Q("-170 deg")))
sketch3.addConstraint(Sketcher.Constraint("Distance", 1, 6.0))
sketch3.addConstraint(Sketcher.Constraint("Distance", 3, 12.0))
sketch3.addConstraint(Sketcher.Constraint("DistanceY", -1, 1, 30, 1, 39.663498))
sketch3.addConstraint(Sketcher.Constraint("Distance", 9, 10.158689))
sketch3.addConstraint(Sketcher.Constraint("Distance", 11, 8.857329))
sketch3.addConstraint(Sketcher.Constraint("Distance", 36, 10.437121))
sketch3.addConstraint(Sketcher.Constraint("DistanceX", 0, 3, -1, 1, 13.449681))
sketch3.addConstraint(Sketcher.Constraint("DistanceY", 0, 3, -1, 1, 35.295531))
sketch3.addConstraint(Sketcher.Constraint("DistanceX", -1, 1, 8, 3, 10.057269))
sketch3.addConstraint(Sketcher.Constraint("DistanceY", 8, 3, -1, 1, 27.786829))
sketch3.addConstraint(Sketcher.Constraint("DistanceY", 16, 3, -1, 1, 39.444652))
sketch3.addConstraint(Sketcher.Constraint("DistanceX", 37, 3, -1, 1, 11.138151))
sketch3.addConstraint(Sketcher.Constraint("DistanceY", 39, 3, -1, 1, 29.72886))
sketch3.addConstraint(Sketcher.Constraint("DistanceX", 41, 3, -1, 1, 20.200229))
sketch3.addConstraint(Sketcher.Constraint("DistanceX", -1, 1, 17, 2, 1.403671))
sketch3.addConstraint(Sketcher.Constraint("DistanceX", 23, 1, -1, 1, 4.540858))
sketch3.addConstraint(Sketcher.Constraint("DistanceY", -1, 1, 26, 2, 30.754521))
sketch3.addConstraint(Sketcher.Constraint("DistanceX", 31, 2, -1, 1, 1.268611))
sketch3.setExpression("Constraints[84]", "Params.sketch3_radius")
sketch3.setExpression("Constraints[87]", "Params.sketch3_length")
sketch3.setExpression("Constraints[88]", "Params.sketch3_length2")
pocket2 = body.newObject("PartDesign::Pocket", "Pocket001")
pocket2.Profile = sketch3
pocket2.Type = "ThroughAll"
pocket2.Reversed = True
doc.recompute()

fillet = body.newObject("PartDesign::Fillet", "Fillet")
fillet.Base = (pocket2, edges_at(pocket2, [
    (-16.716, -48.421, 6),
    (-33.576, -38.687, 6),
    (-17.157, 43.007, 6),
    (1.413, 46.282, 6),
    (17.714, -45.73, 6),
    (-1.005, -49.031, 6),
    (-4.732, -42.059, 6),
    (-10.732, -42.059, 6),
]))
fillet.setExpression("Radius", "Params.fillet_radius")

sketch4 = body.newObject("Sketcher::SketchObject", "Sketch003")
sketch4.Placement = App.Placement(App.Vector(8.354407, -47.380195, 0), App.Rotation(App.Vector(0.984807753, 0.173648178, 0), App.Vector(0, 0, 1), App.Vector(0.173648178, -0.984807753, 0), "ZXY"))
sketch4.addGeometry(Part.Circle(App.Vector(0, 6, 0), App.Vector(0, 0, 1), 2.5), False)
sketch4.addConstraint(Sketcher.Constraint("PointOnObject", 0, 3, -2))
sketch4.addConstraint(Sketcher.Constraint("Diameter", 0, 5.0))
sketch4.addConstraint(Sketcher.Constraint("DistanceY", -1, 1, 0, 3, 6.0))
sketch4.setExpression("Constraints[1]", "Params.sketch4_diameter")
pocket3 = body.newObject("PartDesign::Pocket", "Pocket002")
pocket3.Profile = sketch4
pocket3.setExpression("Length", "Params.pocket3_length")

sketch5 = body.newObject("Sketcher::SketchObject", "Sketch004")
sketch5.Placement = App.Placement(App.Vector(-25.145833, -43.553861, 0), App.Rotation(App.Vector(0.866025404, -0.5, 0), App.Vector(0, 0, 1), App.Vector(-0.5, -0.866025404, 0), "ZXY"))
sketch5.addGeometry(Part.Circle(App.Vector(0, 6, 0), App.Vector(0, 0, 1), 2.5), False)
sketch5.addConstraint(Sketcher.Constraint("PointOnObject", 0, 3, -2))
sketch5.addConstraint(Sketcher.Constraint("Diameter", 0, 5.0))
sketch5.addConstraint(Sketcher.Constraint("DistanceY", -1, 1, 0, 3, 6.0))
sketch5.setExpression("Constraints[1]", "Params.sketch5_diameter")
pocket4 = body.newObject("PartDesign::Pocket", "Pocket003")
pocket4.Profile = sketch5
pocket4.setExpression("Length", "Params.pocket4_length")

sketch6 = body.newObject("Sketcher::SketchObject", "Sketch005")
sketch6.Placement = App.Placement(App.Vector(-7.872051, 44.644618, 0), App.Rotation(App.Vector(0.984807753, 0.173648178, 0), App.Vector(0, 0, -1), App.Vector(-0.173648178, 0.984807753, 0), "ZXY"))
sketch6.addGeometry(Part.ArcOfCircle(Part.Circle(App.Vector(0.028574, -6, 0), App.Vector(0, 0, 1), 2.5), math.radians(0), math.radians(145.384336)), False)
sketch6.addGeometry(Part.ArcOfCircle(Part.Circle(App.Vector(0.028574, -6, 0), App.Vector(0, 0, 1), 2.5), math.radians(145.384336), math.radians(325.384336)), False)
sketch6.addGeometry(Part.ArcOfCircle(Part.Circle(App.Vector(0.028574, -6, 0), App.Vector(0, 0, 1), 2.5), math.radians(-34.615664), math.radians(0)), False)
sketch6.addConstraint(Sketcher.Constraint("Tangent", 0, 2, 1, 1))
sketch6.addConstraint(Sketcher.Constraint("Tangent", 1, 2, 2, 1))
sketch6.addConstraint(Sketcher.Constraint("Tangent", 2, 2, 0, 1))
sketch6.addConstraint(Sketcher.Constraint("Horizontal", 1, 3, 2, 2))
sketch6.addConstraint(Sketcher.Constraint("Radius", 0, 2.5))
sketch6.addConstraint(Sketcher.Constraint("DistanceY", 0, 3, -1, 1, 6.0))
sketch6.addConstraint(Sketcher.Constraint("DistanceX", 0, 2, -1, 1, 2.028879))
sketch6.addConstraint(Sketcher.Constraint("DistanceY", 0, 2, -1, 1, 4.579828))
sketch6.addConstraint(Sketcher.Constraint("DistanceY", 1, 2, -1, 1, 7.420172))
sketch6.setExpression("Constraints[4]", "Params.sketch6_radius")
pocket5 = body.newObject("PartDesign::Pocket", "Pocket004")
pocket5.Profile = sketch6
pocket5.setExpression("Length", "Params.pocket5_length")

doc.recompute()
